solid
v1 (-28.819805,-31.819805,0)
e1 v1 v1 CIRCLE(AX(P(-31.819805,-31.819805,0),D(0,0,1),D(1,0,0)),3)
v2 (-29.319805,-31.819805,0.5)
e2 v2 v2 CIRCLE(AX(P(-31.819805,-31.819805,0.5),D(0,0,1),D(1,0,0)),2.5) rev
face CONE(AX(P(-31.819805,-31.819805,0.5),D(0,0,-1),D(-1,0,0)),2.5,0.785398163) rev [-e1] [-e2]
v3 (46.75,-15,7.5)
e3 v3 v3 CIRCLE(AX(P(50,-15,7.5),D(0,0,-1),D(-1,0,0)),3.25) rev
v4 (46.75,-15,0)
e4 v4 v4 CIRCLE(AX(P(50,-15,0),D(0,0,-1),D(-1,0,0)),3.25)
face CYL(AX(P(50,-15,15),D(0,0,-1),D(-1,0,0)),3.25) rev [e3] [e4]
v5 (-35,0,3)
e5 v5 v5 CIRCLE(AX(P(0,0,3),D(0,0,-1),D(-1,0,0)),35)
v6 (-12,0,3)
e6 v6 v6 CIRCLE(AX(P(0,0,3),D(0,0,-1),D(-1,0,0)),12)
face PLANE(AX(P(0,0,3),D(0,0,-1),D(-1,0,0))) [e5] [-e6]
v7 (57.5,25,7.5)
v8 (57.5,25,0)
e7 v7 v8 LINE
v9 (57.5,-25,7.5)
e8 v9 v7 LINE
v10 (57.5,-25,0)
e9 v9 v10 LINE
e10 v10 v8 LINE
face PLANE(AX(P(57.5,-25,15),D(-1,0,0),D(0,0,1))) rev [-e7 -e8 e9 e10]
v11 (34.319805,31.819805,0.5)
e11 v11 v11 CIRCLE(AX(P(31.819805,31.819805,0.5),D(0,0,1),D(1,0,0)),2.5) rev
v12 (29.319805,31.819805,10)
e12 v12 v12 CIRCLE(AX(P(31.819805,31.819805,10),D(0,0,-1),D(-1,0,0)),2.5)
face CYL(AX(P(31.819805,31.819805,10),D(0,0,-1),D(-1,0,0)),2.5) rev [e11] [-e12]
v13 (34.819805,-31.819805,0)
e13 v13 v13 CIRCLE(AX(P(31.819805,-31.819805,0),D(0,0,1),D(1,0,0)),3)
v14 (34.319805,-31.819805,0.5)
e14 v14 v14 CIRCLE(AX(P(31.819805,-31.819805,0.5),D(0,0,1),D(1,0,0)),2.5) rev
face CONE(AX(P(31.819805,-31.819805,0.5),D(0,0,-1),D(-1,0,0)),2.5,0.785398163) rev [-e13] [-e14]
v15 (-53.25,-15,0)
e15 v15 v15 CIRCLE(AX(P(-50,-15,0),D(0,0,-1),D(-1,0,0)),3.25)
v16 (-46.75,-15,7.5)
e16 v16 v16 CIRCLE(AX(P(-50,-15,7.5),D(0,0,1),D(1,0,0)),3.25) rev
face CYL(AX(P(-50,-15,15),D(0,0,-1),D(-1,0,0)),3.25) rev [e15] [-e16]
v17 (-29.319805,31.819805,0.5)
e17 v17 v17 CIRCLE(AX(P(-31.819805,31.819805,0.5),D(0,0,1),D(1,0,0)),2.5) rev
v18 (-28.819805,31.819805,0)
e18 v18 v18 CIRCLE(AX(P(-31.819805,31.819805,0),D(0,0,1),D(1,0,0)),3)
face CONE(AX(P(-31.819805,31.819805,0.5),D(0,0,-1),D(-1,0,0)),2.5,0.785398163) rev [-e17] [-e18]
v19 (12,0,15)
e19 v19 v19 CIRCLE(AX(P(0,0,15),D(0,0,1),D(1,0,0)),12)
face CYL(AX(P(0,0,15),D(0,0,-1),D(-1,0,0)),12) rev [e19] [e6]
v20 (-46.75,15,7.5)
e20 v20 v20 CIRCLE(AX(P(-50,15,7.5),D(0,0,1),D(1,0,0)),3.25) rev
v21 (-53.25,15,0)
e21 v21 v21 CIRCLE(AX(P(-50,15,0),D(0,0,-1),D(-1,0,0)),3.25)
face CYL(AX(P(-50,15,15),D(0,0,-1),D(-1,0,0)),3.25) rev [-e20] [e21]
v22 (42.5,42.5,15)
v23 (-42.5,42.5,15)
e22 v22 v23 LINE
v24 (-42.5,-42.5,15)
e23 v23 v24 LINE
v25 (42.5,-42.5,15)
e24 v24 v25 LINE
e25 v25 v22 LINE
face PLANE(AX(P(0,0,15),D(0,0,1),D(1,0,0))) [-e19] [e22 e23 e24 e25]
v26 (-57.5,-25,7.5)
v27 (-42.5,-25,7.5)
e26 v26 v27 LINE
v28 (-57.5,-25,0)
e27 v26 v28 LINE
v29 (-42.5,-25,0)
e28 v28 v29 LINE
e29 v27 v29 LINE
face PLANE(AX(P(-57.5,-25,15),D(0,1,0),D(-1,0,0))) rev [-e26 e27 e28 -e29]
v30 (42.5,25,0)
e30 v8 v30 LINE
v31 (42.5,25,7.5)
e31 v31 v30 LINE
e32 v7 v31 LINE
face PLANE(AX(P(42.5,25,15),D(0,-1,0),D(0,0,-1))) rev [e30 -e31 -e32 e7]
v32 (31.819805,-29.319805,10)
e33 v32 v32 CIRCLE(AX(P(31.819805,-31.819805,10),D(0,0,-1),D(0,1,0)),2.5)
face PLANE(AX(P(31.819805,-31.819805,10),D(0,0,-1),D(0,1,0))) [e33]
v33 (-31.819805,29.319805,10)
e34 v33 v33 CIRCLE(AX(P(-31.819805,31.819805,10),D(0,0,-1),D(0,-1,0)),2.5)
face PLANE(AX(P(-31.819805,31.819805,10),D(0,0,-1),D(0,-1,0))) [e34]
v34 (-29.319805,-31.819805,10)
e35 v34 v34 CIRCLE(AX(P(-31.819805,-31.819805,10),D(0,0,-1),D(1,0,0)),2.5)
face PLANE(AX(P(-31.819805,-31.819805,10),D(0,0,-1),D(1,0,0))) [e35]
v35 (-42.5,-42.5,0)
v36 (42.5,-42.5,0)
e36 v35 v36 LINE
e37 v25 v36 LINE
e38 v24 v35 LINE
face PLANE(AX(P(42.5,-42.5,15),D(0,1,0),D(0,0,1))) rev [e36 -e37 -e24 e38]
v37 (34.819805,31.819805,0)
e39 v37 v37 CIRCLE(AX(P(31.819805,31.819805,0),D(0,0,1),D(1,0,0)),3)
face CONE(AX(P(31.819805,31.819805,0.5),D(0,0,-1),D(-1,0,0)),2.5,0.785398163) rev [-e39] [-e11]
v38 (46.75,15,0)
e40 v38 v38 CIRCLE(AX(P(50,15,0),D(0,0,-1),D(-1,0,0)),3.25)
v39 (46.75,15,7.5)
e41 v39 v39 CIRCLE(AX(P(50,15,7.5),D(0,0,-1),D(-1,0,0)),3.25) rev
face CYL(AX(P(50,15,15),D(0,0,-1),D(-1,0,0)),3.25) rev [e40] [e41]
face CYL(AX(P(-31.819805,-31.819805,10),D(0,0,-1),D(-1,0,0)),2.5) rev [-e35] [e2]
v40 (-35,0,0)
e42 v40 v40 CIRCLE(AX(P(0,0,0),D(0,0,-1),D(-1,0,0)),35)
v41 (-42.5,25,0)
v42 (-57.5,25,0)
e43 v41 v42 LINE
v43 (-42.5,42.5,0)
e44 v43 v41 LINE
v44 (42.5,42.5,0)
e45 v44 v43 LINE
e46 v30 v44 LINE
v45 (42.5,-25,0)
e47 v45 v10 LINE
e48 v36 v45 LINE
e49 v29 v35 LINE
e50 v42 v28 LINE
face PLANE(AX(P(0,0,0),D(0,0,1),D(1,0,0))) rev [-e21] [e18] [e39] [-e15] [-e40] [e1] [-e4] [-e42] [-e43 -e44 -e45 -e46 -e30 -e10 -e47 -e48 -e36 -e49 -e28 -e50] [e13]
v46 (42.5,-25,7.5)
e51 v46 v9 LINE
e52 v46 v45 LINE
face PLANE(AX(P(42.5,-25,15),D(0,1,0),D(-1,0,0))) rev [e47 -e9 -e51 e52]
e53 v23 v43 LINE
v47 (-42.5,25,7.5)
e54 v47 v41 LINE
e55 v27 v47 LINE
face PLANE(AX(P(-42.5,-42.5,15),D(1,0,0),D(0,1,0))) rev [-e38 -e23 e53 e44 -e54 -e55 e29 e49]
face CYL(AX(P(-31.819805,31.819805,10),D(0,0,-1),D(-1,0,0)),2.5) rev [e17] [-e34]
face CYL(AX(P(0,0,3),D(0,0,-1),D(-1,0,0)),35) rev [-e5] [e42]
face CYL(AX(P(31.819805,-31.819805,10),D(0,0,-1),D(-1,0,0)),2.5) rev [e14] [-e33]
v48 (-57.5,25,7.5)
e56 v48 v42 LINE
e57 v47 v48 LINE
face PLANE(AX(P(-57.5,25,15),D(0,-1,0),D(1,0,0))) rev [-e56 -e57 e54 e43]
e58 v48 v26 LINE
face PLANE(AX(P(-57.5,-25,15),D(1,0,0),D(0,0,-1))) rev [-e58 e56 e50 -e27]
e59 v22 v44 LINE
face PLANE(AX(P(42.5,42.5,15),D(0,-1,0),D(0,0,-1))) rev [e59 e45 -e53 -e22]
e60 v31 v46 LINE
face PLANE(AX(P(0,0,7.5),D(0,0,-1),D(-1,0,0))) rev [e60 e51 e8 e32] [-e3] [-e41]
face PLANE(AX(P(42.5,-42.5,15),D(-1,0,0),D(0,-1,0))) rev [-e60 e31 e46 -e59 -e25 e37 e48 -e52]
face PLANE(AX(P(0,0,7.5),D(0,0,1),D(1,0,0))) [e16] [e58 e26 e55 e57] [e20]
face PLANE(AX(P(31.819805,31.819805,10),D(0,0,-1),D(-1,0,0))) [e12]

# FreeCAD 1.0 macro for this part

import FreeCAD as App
import Part
import Sketcher

V = App.Vector
Q = App.Units.Quantity


def edges_at(feature, points):
    """Names of the edges that pass closest to the given points."""
    edges = feature.Shape.Edges
    near = lambda p: min(range(len(edges)), key=lambda i: edges[i].distToShape(Part.Vertex(*p))[0])
    return sorted({f"Edge{near(p) + 1}" for p in points})

doc = App.newDocument("Part")
params = doc.addObject("Spreadsheet::Sheet", "Params")
for row, (alias, value) in enumerate([
    ("sketch1_diameter", "24 mm"),
    ("sketch1_width", "85 mm"),
    ("sketch1_width2", "15 mm"),
    ("sketch1_height", "50 mm"),
    ("sketch1_height2", "17.5 mm"),
    ("pad1_length", "15 mm"),
    ("sketch2_diameter", "6.5 mm"),
    ("sketch3_width", "15 mm"),
    ("sketch3_height", "50 mm"),
    ("pocket2_length", "7.5 mm"),
    ("sketch4_diameter", "5 mm"),
    ("pocket3_length", "10 mm"),
    ("chamfer_size", "0.5 mm"),
    ("sketch5_diameter", "70 mm"),
    ("pocket4_length", "3 mm"),
], start=1):
    params.set(f"A{row}", alias)
    params.set(f"B{row}", "=" + value)
    params.setAlias(f"B{row}", alias)

body = doc.addObject("PartDesign::Body", "Body")

# Sketch on XY plane
sketch1 = doc.addObject("Sketcher::SketchObject", "Sketch")
body.addObject(sketch1)
sketch1.AttachmentSupport = (doc.XY_Plane, [""])
sketch1.MapMode = "FlatFace"
sketch1.addGeometry([
    Part.LineSegment(V(42, 25, 0), V(42, 42, 0)),  # 0
    Part.LineSegment(V(42, 42, 0), V(-42, 42, 0)),  # 1
    Part.LineSegment(V(-42, 42, 0), V(-42, 25, 0)),  # 2
    Part.LineSegment(V(-42, 25, 0), V(-58, 25, 0)),  # 3
    Part.LineSegment(V(-58, 25, 0), V(-58, -25, 0)),  # 4
    Part.LineSegment(V(-58, -25, 0), V(-42, -25, 0)),  # 5
    Part.LineSegment(V(-42, -25, 0), V(-42, -42, 0)),  # 6
    Part.LineSegment(V(-42, -42, 0), V(42, -42, 0)),  # 7
    Part.LineSegment(V(42, -42, 0), V(42, -25, 0)),  # 8
    Part.LineSegment(V(42, -25, 0), V(58, -25, 0)),  # 9
    Part.LineSegment(V(58, -25, 0), V(58, 25, 0)),  # 10
    Part.LineSegment(V(58, 25, 0), V(42, 25, 0)),  # 11
    Part.Circle(V(0, 0, 0), V(0, 0, 1), 12),  # 12
], False)
sketch1.addConstraint([
    Sketcher.Constraint("Coincident", 0, 2, 1, 1),
    Sketcher.Constraint("Coincident", 1, 2, 2, 1),
    Sketcher.Constraint("Coincident", 2, 2, 3, 1),
    Sketcher.Constraint("Coincident", 3, 2, 4, 1),
    Sketcher.Constraint("Coincident", 4, 2, 5, 1),
    Sketcher.Constraint("Coincident", 5, 2, 6, 1),
    Sketcher.Constraint("Coincident", 6, 2, 7, 1),
    Sketcher.Constraint("Coincident", 7, 2, 8, 1),
    Sketcher.Constraint("Coincident", 8, 2, 9, 1),
    Sketcher.Constraint("Coincident", 9, 2, 10, 1),
    Sketcher.Constraint("Coincident", 10, 2, 11, 1),
    Sketcher.Constraint("Coincident", 11, 2, 0, 1),
    Sketcher.Constraint("Vertical", 0),
    Sketcher.Constraint("Horizontal", 1),
    Sketcher.Constraint("Vertical", 2),
    Sketcher.Constraint("Horizontal", 3),
    Sketcher.Constraint("Vertical", 4),
    Sketcher.Constraint("Horizontal", 5),
    Sketcher.Constraint("Vertical", 6),
    Sketcher.Constraint("Horizontal", 7),
    Sketcher.Constraint("Vertical", 8),
    Sketcher.Constraint("Horizontal", 9),
    Sketcher.Constraint("Vertical", 10),
    Sketcher.Constraint("Horizontal", 11),
    Sketcher.Constraint("Coincident", 12, 3, -1, 1),
    Sketcher.Constraint("Symmetric", 0, 2, 6, 2, -1, 1),
    Sketcher.Constraint("Symmetric", 2, 2, 8, 2, -1, 1),
    Sketcher.Constraint("Symmetric", 4, 2, 10, 2, -1, 1),
    Sketcher.Constraint("Symmetric", 5, 2, 8, 2, -2),
    Sketcher.Constraint("Diameter", 12, Q("24 mm")),
    Sketcher.Constraint("DistanceX", 1, 2, 1, 1, Q("85 mm")),
    Sketcher.Constraint("DistanceX", 3, 2, 3, 1, Q("15 mm")),
    Sketcher.Constraint("DistanceY", 4, 2, 4, 1, Q("50 mm")),
    Sketcher.Constraint("DistanceY", 0, 1, 0, 2, Q("17.5 mm")),
])
sketch1.setExpression("Constraints[29]", "Params.sketch1_diameter")
sketch1.setExpression("Constraints[30]", "Params.sketch1_width")
sketch1.setExpression("Constraints[31]", "Params.sketch1_width2")
sketch1.setExpression("Constraints[32]", "Params.sketch1_height")
sketch1.setExpression("Constraints[33]", "Params.sketch1_height2")
pad1 = doc.addObject("PartDesign::Pad", "Pad")
body.addObject(pad1)
pad1.Profile = sketch1
pad1.setExpression("Length", "Params.pad1_length")

# Sketch on XY plane
sketch2 = doc.addObject("Sketcher::SketchObject", "Sketch001")
body.addObject(sketch2)
sketch2.AttachmentSupport = (doc.XY_Plane, [""])
sketch2.MapMode = "FlatFace"
sketch2.addGeometry([
    Part.Circle(V(50, -15, 0), V(0, 0, 1), 3.2),
    Part.Circle(V(50, 15, 0), V(0, 0, 1), 3.2),
    Part.Circle(V(-50, 15, 0), V(0, 0, 1), 3.2),
    Part.Circle(V(-50, -15, 0), V(0, 0, 1), 3.2),
], False)
sketch2.addConstraint([
    Sketcher.Constraint("Equal", 0, 1),
    Sketcher.Constraint("Equal", 1, 2),
    Sketcher.Constraint("Equal", 2, 3),
    Sketcher.Constraint("Symmetric", 0, 3, 2, 3, -1, 1),
    Sketcher.Constraint("Symmetric", 1, 3, 3, 3, -1, 1),
    Sketcher.Constraint("Symmetric", 1, 3, 2, 3, -2),
    Sketcher.Constraint("Diameter", 0, Q("6.5 mm")),
    Sketcher.Constraint("DistanceX", -1, 1, 0, 3, Q("50 mm")),
    Sketcher.Constraint("DistanceY", 0, 3, -1, 1, Q("15 mm")),
])
sketch2.setExpression("Constraints[6]", "Params.sketch2_diameter")
pocket1 = doc.addObject("PartDesign::Pocket", "Pocket")
body.addObject(pocket1)
pocket1.Profile = sketch2
pocket1.Type = "ThroughAll"
pocket1.Reversed = True

# Sketch on XY plane
sketch3 = doc.addObject("Sketcher::SketchObject", "Sketch002")
body.addObject(sketch3)
sketch3.AttachmentSupport = (doc.XY_Plane, [""])
sketch3.MapMode = "FlatFace"
sketch3.AttachmentOffset = App.Placement(V(0, 0, 15), App.Rotation())
sketch3.addGeometry([
    Part.LineSegment(V(-58, 25, 0), V(-58, -25, 0)),  # 0
    Part.LineSegment(V(-58, -25, 0), V(-42, -25, 0)),  # 1
    Part.LineSegment(V(-42, -25, 0), V(-42, 25, 0)),  # 2
    Part.LineSegment(V(-42, 25, 0), V(-58, 25, 0)),  # 3
    Part.LineSegment(V(42, 25, 0), V(42, -25, 0)),  # 4
    Part.LineSegment(V(42, -25, 0), V(58, -25, 0)),  # 5
    Part.LineSegment(V(58, -25, 0), V(58, 25, 0)),  # 6
    Part.LineSegment(V(58, 25, 0), V(42, 25, 0)),  # 7
], False)
sketch3.addConstraint([
    Sketcher.Constraint("Coincident", 0, 2, 1, 1),
    Sketcher.Constraint("Coincident", 1, 2, 2, 1),
    Sketcher.Constraint("Coincident", 2, 2, 3, 1),
    Sketcher.Constraint("Coincident", 3, 2, 0, 1),
    Sketcher.Constraint("Coincident", 4, 2, 5, 1),
    Sketcher.Constraint("Coincident", 5, 2, 6, 1),
    Sketcher.Constraint("Coincident", 6, 2, 7, 1),
    Sketcher.Constraint("Coincident", 7, 2, 4, 1),
    Sketcher.Constraint("Vertical", 0),
    Sketcher.Constraint("Horizontal", 1),
    Sketcher.Constraint("Vertical", 2),
    Sketcher.Constraint("Horizontal", 3),
    Sketcher.Constraint("Vertical", 4),
    Sketcher.Constraint("Horizontal", 5),
    Sketcher.Constraint("Vertical", 6),
    Sketcher.Constraint("Horizontal", 7),
    Sketcher.Constraint("Symmetric", 2, 2, 4, 2, -1, 1),
    Sketcher.Constraint("Symmetric", 0, 2, 6, 2, -1, 1),
    Sketcher.Constraint("Horizontal", 1, 2, 4, 2),
    Sketcher.Constraint("DistanceX", 1, 1, 1, 2, Q("15 mm")),
    Sketcher.Constraint("DistanceY", 0, 2, 0, 1, Q("50 mm")),
    Sketcher.Constraint("DistanceX", 1, 2, 4, 2, Q("85 mm")),
])
sketch3.setExpression("Constraints[19]", "Params.sketch3_width")
sketch3.setExpression("Constraints[20]", "Params.sketch3_height")
pocket2 = doc.addObject("PartDesign::Pocket", "Pocket001")
body.addObject(pocket2)
pocket2.Profile = sketch3
pocket2.setExpression("Length", "Params.pocket2_length")

# Sketch on XY plane
sketch4 = doc.addObject("Sketcher::SketchObject", "Sketch003")
body.addObject(sketch4)
sketch4.AttachmentSupport = (doc.XY_Plane, [""])
sketch4.MapMode = "FlatFace"
sketch4.addGeometry(Part.Circle(V(31.8, 31.8, 0), V(0, 0, 1), 2.5), False)
sketch4.addConstraint([
    Sketcher.Constraint("Diameter", 0, Q("5 mm")),
    Sketcher.Constraint("DistanceX", -1, 1, 0, 3, Q("31.819805 mm")),
    Sketcher.Constraint("DistanceY", -1, 1, 0, 3, Q("31.819805 mm")),
])
sketch4.setExpression("Constraints[0]", "Params.sketch4_diameter")
pocket3 = doc.addObject("PartDesign::Pocket", "Pocket002")
body.addObject(pocket3)
pocket3.Profile = sketch4
pocket3.setExpression("Length", "Params.pocket3_length")
pocket3.Reversed = True
doc.recompute()

polarpattern = doc.addObject("PartDesign::PolarPattern", "PolarPattern")
body.addObject(polarpattern)
polarpattern.Originals = [pocket3]
polarpattern.Axis = (doc.Z_Axis, [""])
polarpattern.Angle = 360
polarpattern.Occurrences = 4
body.Tip = polarpattern
doc.recompute()

chamfer = doc.addObject("PartDesign::Chamfer", "Chamfer")
body.addObject(chamfer)
chamfer.Base = (polarpattern, edges_at(polarpattern, [
    (31.82, -34.32, 0),
    (-34.32, -31.82, 0),
    (-31.82, 34.32, 0),
    (34.32, 31.82, 0),
]))
chamfer.setExpression("Size", "Params.chamfer_size")

# Sketch on XY plane
sketch5 = doc.addObject("Sketcher::SketchObject", "Sketch004")
body.addObject(sketch5)
sketch5.AttachmentSupport = (doc.XY_Plane, [""])
sketch5.MapMode = "FlatFace"
sketch5.addGeometry(Part.Circle(V(0, 0, 0), V(0, 0, 1), 35), False)
sketch5.addConstraint([
    Sketcher.Constraint("Coincident", 0, 3, -1, 1),
    Sketcher.Constraint("Diameter", 0, Q("70 mm")),
])
sketch5.setExpression("Constraints[1]", "Params.sketch5_diameter")
pocket4 = doc.addObject("PartDesign::Pocket", "Pocket003")
body.addObject(pocket4)
pocket4.Profile = sketch5
pocket4.setExpression("Length", "Params.pocket4_length")
pocket4.Reversed = True

doc.recompute()
